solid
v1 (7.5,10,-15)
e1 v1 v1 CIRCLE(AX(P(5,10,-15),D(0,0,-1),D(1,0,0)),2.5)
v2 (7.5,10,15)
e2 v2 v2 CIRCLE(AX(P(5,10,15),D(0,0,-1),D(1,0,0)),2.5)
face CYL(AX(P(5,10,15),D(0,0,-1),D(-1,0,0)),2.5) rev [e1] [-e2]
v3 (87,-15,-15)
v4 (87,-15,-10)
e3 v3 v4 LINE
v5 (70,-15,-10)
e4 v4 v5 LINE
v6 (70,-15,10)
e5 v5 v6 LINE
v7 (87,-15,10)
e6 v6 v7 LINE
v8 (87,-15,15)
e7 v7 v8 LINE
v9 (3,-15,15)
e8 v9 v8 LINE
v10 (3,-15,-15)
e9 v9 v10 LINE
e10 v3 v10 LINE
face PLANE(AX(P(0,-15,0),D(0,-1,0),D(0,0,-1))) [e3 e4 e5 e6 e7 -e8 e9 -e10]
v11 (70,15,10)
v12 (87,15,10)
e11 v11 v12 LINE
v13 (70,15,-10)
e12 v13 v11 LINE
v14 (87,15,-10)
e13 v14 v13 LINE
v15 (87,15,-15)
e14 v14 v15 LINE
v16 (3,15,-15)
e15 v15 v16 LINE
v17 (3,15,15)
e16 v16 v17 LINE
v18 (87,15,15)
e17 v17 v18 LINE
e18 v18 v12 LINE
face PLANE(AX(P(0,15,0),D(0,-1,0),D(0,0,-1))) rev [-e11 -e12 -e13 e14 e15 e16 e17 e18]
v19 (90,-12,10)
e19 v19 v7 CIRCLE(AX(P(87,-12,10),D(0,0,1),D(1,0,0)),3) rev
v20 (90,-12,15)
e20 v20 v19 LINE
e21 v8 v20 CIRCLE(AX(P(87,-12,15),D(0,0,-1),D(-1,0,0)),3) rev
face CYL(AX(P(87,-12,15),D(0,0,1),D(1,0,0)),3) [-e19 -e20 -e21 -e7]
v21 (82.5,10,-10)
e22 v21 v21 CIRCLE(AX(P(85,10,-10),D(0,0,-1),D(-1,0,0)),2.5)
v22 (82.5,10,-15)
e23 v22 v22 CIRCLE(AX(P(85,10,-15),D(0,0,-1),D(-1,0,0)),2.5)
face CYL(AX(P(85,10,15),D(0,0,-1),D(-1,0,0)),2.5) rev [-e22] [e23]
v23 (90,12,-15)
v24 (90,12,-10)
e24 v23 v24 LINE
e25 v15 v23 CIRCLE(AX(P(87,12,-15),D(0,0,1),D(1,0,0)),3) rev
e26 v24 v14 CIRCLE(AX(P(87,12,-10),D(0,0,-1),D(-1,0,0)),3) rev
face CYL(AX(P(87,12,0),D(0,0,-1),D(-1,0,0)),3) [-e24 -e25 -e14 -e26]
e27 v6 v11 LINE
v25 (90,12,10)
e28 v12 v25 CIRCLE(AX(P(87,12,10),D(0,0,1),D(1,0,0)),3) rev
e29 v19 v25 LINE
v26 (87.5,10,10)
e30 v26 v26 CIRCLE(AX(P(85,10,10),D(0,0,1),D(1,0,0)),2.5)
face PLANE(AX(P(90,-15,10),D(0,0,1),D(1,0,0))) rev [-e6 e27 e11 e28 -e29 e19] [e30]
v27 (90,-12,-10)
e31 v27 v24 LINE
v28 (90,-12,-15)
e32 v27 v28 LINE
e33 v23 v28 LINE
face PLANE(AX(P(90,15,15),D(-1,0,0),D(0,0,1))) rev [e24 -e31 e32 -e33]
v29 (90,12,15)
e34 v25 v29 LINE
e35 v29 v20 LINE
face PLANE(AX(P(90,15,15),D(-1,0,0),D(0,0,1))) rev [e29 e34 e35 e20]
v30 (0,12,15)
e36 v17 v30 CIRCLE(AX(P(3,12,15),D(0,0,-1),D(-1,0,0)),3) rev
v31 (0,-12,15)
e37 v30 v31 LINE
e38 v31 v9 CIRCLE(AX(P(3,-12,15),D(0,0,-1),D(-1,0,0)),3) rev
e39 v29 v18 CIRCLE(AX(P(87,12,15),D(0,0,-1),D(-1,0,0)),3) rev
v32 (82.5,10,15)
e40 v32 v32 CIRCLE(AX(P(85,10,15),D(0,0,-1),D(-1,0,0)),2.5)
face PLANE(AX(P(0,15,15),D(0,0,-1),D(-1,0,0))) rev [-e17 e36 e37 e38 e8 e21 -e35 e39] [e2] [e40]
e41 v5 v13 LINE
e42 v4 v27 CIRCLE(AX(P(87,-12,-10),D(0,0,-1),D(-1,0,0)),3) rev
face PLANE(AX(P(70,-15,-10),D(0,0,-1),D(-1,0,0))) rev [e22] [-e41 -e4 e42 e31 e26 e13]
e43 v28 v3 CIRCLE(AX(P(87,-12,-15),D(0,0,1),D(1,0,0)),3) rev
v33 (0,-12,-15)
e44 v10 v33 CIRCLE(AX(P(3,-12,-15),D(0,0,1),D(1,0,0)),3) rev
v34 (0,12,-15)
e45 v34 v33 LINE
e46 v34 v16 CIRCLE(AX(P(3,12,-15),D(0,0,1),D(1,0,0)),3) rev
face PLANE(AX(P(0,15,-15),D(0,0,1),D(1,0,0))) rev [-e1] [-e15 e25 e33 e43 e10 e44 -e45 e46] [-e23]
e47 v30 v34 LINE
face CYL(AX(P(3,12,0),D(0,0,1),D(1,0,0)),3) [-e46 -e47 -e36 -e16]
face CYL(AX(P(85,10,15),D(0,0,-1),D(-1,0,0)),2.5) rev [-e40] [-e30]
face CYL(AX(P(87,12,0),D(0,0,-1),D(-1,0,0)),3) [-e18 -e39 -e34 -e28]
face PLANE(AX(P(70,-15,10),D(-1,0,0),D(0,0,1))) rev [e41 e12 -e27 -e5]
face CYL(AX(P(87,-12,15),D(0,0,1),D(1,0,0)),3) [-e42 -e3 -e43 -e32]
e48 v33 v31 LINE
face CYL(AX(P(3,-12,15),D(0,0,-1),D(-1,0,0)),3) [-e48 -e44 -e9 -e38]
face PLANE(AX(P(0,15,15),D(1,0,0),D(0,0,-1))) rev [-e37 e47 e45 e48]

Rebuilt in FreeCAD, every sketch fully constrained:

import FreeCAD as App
import Part
import Sketcher

V = App.Vector
Q = App.Units.Quantity


def edges_at(feature, points):
    """Names of the edges that pass closest to the given points."""
    edges = feature.Shape.Edges
    near = lambda p: min(range(len(edges)), key=lambda i: edges[i].distToShape(Part.Vertex(*p))[0])
    return sorted({f"Edge{near(p) + 1}" for p in points})


def add_polygon(sketch, points):
    """Adds a closed chain of lines whose ends are joined by coincident constraints."""
    first, n = sketch.GeometryCount, len(points)
    for a, b in zip(points, points[1:] + points[:1]):
        sketch.addGeometry(Part.LineSegment(App.Vector(*a, 0), App.Vector(*b, 0)), False)
    for i in range(n):
        sketch.addConstraint(Sketcher.Constraint("Coincident", first + i, 2, first + (i + 1) % n, 1))

doc = App.newDocument("Part")
params = doc.addObject("Spreadsheet::Sheet", "Params")
for row, (alias, value) in enumerate([
    ("sketch1_width", "90 mm"),
    ("sketch1_height", "30 mm"),
    ("pad1_length", "30 mm"),
    ("fillet_radius", "3 mm"),
    ("sketch2_width", "20 mm"),
    ("sketch3_diameter", "5 mm"),
], start=1):
    params.set(f"A{row}", alias)
    params.set(f"B{row}", "=" + value)
    params.setAlias(f"B{row}", alias)

body = doc.addObject("PartDesign::Body", "Body")

sketch1 = body.newObject("Sketcher::SketchObject", "Sketch")
sketch1.AttachmentSupport = (doc.getObject("XZ_Plane"), [""])
sketch1.MapMode = "FlatFace"
add_polygon(sketch1, [(0, -15), (0, 15), (90, 15), (90, -15)])
sketch1.addConstraint([
    Sketcher.Constraint("Vertical", 0),
    Sketcher.Constraint("Horizontal", 1),
    Sketcher.Constraint("Vertical", 2),
    Sketcher.Constraint("Horizontal", 3),
    Sketcher.Constraint("Symmetric", 0, 2, 3, 2, -1, 1),
    Sketcher.Constraint("DistanceX", 1, 1, 1, 2, Q("90 mm")),
    Sketcher.Constraint("DistanceY", 0, 1, 0, 2, Q("30 mm")),
])
sketch1.setExpression("Constraints[9]", "Params.sketch1_width")
sketch1.setExpression("Constraints[10]", "Params.sketch1_height")
pad1 = body.newObject("PartDesign::Pad", "Pad")
pad1.Profile = sketch1
pad1.setExpression("Length", "Params.pad1_length")
pad1.Midplane = True
doc.recompute()

fillet = body.newObject("PartDesign::Fillet", "Fillet")
fillet.Base = (pad1, edges_at(pad1, [
    (90, 15, 0),
    (0, 15, 0),
    (90, -15, 0),
    (0, -15, 0),
]))
fillet.setExpression("Radius", "Params.fillet_radius")

sketch2 = body.newObject("Sketcher::SketchObject", "Sketch001")
sketch2.AttachmentSupport = (doc.getObject("XZ_Plane"), [""])
sketch2.MapMode = "FlatFace"
sketch2.AttachmentOffset = App.Placement(V(0, 0, -15), App.Rotation())
add_polygon(sketch2, [(70, -10), (70, 10), (90, 10), (90, -10)])
sketch2.addConstraint([
    Sketcher.Constraint("Vertical", 0),
    Sketcher.Constraint("Horizontal", 1),
    Sketcher.Constraint("Vertical", 2),
    Sketcher.Constraint("Horizontal", 3),
    Sketcher.Constraint("Equal", 3, 0),
    Sketcher.Constraint("DistanceX", 1, 1, 1, 2, Q("20 mm")),
    Sketcher.Constraint("DistanceX", -1, 1, 0, 2, Q("70 mm")),
    Sketcher.Constraint("DistanceY", -1, 1, 0, 2, Q("10 mm")),
])
sketch2.setExpression("Constraints[9]", "Params.sketch2_width")
pocket1 = body.newObject("PartDesign::Pocket", "Pocket")
pocket1.Profile = sketch2
pocket1.Type = "ThroughAll"
pocket1.Reversed = True

sketch3 = body.newObject("Sketcher::SketchObject", "Sketch002")
sketch3.AttachmentSupport = (doc.getObject("XY_Plane"), [""])
sketch3.MapMode = "FlatFace"
sketch3.AttachmentOffset = App.Placement(V(0, 0, -15), App.Rotation())
sketch3.addGeometry([
    Part.Circle(V(85, 10, 0), V(0, 0, 1), 2.5),
    Part.Circle(V(5, 10, 0), V(0, 0, 1), 2.5),
], False)
sketch3.addConstraint([
    Sketcher.Constraint("Equal", 0, 1),
    Sketcher.Constraint("Horizontal", 0, 3, 1, 3),
    Sketcher.Constraint("Diameter", 0, Q("5 mm")),
    Sketcher.Constraint("DistanceX", -1, 1, 0, 3, Q("85 mm")),
    Sketcher.Constraint("DistanceY", -1, 1, 0, 3, Q("10 mm")),
    Sketcher.Constraint("DistanceX", -1, 1, 1, 3, Q("5 mm")),
])
sketch3.setExpression("Constraints[2]", "Params.sketch3_diameter")
pocket2 = body.newObject("PartDesign::Pocket", "Pocket001")
pocket2.Profile = sketch3
pocket2.Type = "ThroughAll"
pocket2.Reversed = True

doc.recompute()
